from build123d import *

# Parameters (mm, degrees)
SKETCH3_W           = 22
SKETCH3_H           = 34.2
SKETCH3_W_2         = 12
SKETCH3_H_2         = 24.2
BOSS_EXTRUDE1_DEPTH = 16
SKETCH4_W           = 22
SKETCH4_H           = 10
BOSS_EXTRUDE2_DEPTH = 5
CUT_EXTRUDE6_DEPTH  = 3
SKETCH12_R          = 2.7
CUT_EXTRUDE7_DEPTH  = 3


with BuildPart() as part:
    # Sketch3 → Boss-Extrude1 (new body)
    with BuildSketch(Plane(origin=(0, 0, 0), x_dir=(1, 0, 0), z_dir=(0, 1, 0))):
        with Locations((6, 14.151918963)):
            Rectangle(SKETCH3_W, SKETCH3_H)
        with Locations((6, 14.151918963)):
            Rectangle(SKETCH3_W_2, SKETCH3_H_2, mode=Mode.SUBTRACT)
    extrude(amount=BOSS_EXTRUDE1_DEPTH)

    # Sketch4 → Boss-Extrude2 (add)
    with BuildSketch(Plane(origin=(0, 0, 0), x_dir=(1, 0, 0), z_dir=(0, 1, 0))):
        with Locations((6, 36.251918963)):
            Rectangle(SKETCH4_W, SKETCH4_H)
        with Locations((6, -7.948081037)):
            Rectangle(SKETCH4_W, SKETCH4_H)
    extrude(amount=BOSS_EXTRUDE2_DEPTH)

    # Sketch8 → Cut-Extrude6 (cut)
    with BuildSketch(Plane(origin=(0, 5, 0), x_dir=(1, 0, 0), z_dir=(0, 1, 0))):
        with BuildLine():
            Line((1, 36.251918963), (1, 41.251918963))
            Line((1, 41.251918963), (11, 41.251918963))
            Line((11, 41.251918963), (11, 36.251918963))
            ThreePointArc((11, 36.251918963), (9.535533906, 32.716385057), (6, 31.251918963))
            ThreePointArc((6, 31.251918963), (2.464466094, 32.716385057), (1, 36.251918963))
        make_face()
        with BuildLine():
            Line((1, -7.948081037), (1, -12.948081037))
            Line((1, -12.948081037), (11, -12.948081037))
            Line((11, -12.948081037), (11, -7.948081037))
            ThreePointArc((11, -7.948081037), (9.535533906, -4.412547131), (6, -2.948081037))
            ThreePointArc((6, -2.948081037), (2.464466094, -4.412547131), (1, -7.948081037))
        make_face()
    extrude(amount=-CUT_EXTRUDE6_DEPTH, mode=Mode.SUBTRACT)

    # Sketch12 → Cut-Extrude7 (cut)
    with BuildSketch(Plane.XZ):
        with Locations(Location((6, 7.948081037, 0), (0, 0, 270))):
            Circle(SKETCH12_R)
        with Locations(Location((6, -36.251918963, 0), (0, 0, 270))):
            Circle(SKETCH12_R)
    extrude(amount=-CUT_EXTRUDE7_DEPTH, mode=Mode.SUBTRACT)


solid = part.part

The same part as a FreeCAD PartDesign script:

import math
import FreeCAD as App
import Part
import Sketcher


def add_polygon(sketch, points):
    """Adds a closed chain of lines whose ends are joined by coincident constraints."""
    first, n = sketch.GeometryCount, len(points)
    for a, b in zip(points, points[1:] + points[:1]):
        sketch.addGeometry(Part.LineSegment(App.Vector(*a, 0), App.Vector(*b, 0)), False)
    for i in range(n):
        sketch.addConstraint(Sketcher.Constraint("Coincident", first + i, 2, first + (i + 1) % n, 1))

doc = App.newDocument("Part")
params = doc.addObject("Spreadsheet::Sheet", "Params")
for row, (alias, value) in enumerate([
    ("sketch1_width", "22 mm"),
    ("sketch1_width2", "12 mm"),
    ("sketch1_height", "34.2 mm"),
    ("sketch1_height2", "24.2 mm"),
    ("pad1_length", "16 mm"),
    ("sketch2_width", "22 mm"),
    ("sketch2_height", "10 mm"),
    ("pad2_length", "5 mm"),
    ("sketch3_radius", "5 mm"),
    ("sketch3_height", "5 mm"),
    ("pocket1_length", "3 mm"),
    ("sketch4_diameter", "5.4 mm"),
    ("pocket2_length", "3 mm"),
], start=1):
    params.set(f"A{row}", alias)
    params.set(f"B{row}", "=" + value)
    params.setAlias(f"B{row}", alias)

body = doc.addObject("PartDesign::Body", "Body")

sketch1 = doc.addObject("Sketcher::SketchObject", "Sketch")
body.addObject(sketch1)
sketch1.AttachmentSupport = (doc.XZ_Plane, [""])
sketch1.MapMode = "FlatFace"
add_polygon(sketch1, [(-5, -31), (-5, 3), (17, 3), (17, -31)])
add_polygon(sketch1, [(12, -2), (0, -2), (0, -26), (12, -26)])
sketch1.addConstraint(Sketcher.Constraint("Vertical", 0))
sketch1.addConstraint(Sketcher.Constraint("Horizontal", 1))
sketch1.addConstraint(Sketcher.Constraint("Vertical", 2))
sketch1.addConstraint(Sketcher.Constraint("Horizontal", 3))
sketch1.addConstraint(Sketcher.Constraint("Horizontal", 4))
sketch1.addConstraint(Sketcher.Constraint("Vertical", 5))
sketch1.addConstraint(Sketcher.Constraint("Horizontal", 6))
sketch1.addConstraint(Sketcher.Constraint("Vertical", 7))
sketch1.addConstraint(Sketcher.Constraint("PointOnObject", 4, 2, -2))
sketch1.addConstraint(Sketcher.Constraint("DistanceX", 1, 1, 1, 2, 22.0))
sketch1.addConstraint(Sketcher.Constraint("DistanceX", 4, 2, 4, 1, 12.0))
sketch1.addConstraint(Sketcher.Constraint("DistanceY", 0, 1, 0, 2, 34.2))
sketch1.addConstraint(Sketcher.Constraint("DistanceY", 5, 2, 5, 1, 24.2))
sketch1.addConstraint(Sketcher.Constraint("DistanceX", 0, 2, -1, 1, 5.0))
sketch1.addConstraint(Sketcher.Constraint("DistanceY", 4, 2, 0, 2, 5.0))
sketch1.addConstraint(Sketcher.Constraint("DistanceY", -1, 1, 0, 2, 2.948081))
sketch1.setExpression("Constraints[17]", "Params.sketch1_width")
sketch1.setExpression("Constraints[18]", "Params.sketch1_width2")
sketch1.setExpression("Constraints[19]", "Params.sketch1_height")
sketch1.setExpression("Constraints[20]", "Params.sketch1_height2")
pad1 = doc.addObject("PartDesign::Pad", "Pad")
body.addObject(pad1)
pad1.Profile = sketch1
pad1.setExpression("Length", "Params.pad1_length")
pad1.Reversed = True

sketch2 = doc.addObject("Sketcher::SketchObject", "Sketch001")
body.addObject(sketch2)
sketch2.AttachmentSupport = (doc.XZ_Plane, [""])
sketch2.MapMode = "FlatFace"
add_polygon(sketch2, [(-5, -41), (-5, -31), (17, -31), (17, -41)])
add_polygon(sketch2, [(-5, 3), (-5, 13), (17, 13), (17, 3)])
sketch2.addConstraint(Sketcher.Constraint("Vertical", 0))
sketch2.addConstraint(Sketcher.Constraint("Horizontal", 1))
sketch2.addConstraint(Sketcher.Constraint("Vertical", 2))
sketch2.addConstraint(Sketcher.Constraint("Horizontal", 3))
sketch2.addConstraint(Sketcher.Constraint("Vertical", 4))
sketch2.addConstraint(Sketcher.Constraint("Horizontal", 5))
sketch2.addConstraint(Sketcher.Constraint("Vertical", 6))
sketch2.addConstraint(Sketcher.Constraint("Horizontal", 7))
sketch2.addConstraint(Sketcher.Constraint("Vertical", 3, 2, 4, 2))
sketch2.addConstraint(Sketcher.Constraint("Vertical", 2, 2, 5, 2))
sketch2.addConstraint(Sketcher.Constraint("Equal", 2, 4))
sketch2.addConstraint(Sketcher.Constraint("DistanceX", 1, 1, 1, 2, 22.0))
sketch2.addConstraint(Sketcher.Constraint("DistanceY", 0, 1, 0, 2, 10.0))
sketch2.addConstraint(Sketcher.Constraint("DistanceX", 0, 2, -1, 1, 5.0))
sketch2.addConstraint(Sketcher.Constraint("DistanceY", 0, 2, 4, 2, 44.2))
sketch2.addConstraint(Sketcher.Constraint("DistanceY", 0, 2, -1, 1, 31.251919))
sketch2.setExpression("Constraints[19]", "Params.sketch2_width")
sketch2.setExpression("Constraints[20]", "Params.sketch2_height")
pad2 = doc.addObject("PartDesign::Pad", "Pad001")
body.addObject(pad2)
pad2.Profile = sketch2
pad2.setExpression("Length", "Params.pad2_length")
pad2.Reversed = True

sketch3 = doc.addObject("Sketcher::SketchObject", "Sketch002")
body.addObject(sketch3)
sketch3.AttachmentSupport = (doc.XZ_Plane, [""])
sketch3.MapMode = "FlatFace"
sketch3.AttachmentOffset = App.Placement(App.Vector(0, 0, -5), App.Rotation())
sketch3.addGeometry(Part.LineSegment(App.Vector(1, -41, 0), App.Vector(1, -36, 0)), False)
sketch3.addGeometry(Part.ArcOfCircle(Part.Circle(App.Vector(6, -36, 0), App.Vector(0, 0, 1), 5), math.radians(90), math.radians(180)), False)
sketch3.addGeometry(Part.ArcOfCircle(Part.Circle(App.Vector(6, -36, 0), App.Vector(0, 0, 1), 5), math.radians(0), math.radians(90)), False)
sketch3.addGeometry(Part.LineSegment(App.Vector(11, -36, 0), App.Vector(11, -41, 0)), False)
sketch3.addGeometry(Part.LineSegment(App.Vector(11, -41, 0), App.Vector(1, -41, 0)), False)
sketch3.addGeometry(Part.LineSegment(App.Vector(1, 8, 0), App.Vector(1, 13, 0)), False)
sketch3.addGeometry(Part.LineSegment(App.Vector(1, 13, 0), App.Vector(11, 13, 0)), False)
sketch3.addGeometry(Part.LineSegment(App.Vector(11, 13, 0), App.Vector(11, 8, 0)), False)
sketch3.addGeometry(Part.ArcOfCircle(Part.Circle(App.Vector(6, 8, 0), App.Vector(0, 0, 1), 5), math.radians(-90), math.radians(0)), False)
sketch3.addGeometry(Part.ArcOfCircle(Part.Circle(App.Vector(6, 8, 0), App.Vector(0, 0, 1), 5), math.radians(180), math.radians(270)), False)
sketch3.addConstraint(Sketcher.Constraint("Tangent", 0, 2, 1, 2))
sketch3.addConstraint(Sketcher.Constraint("Tangent", 1, 1, 2, 2))
sketch3.addConstraint(Sketcher.Constraint("Tangent", 2, 1, 3, 1))
sketch3.addConstraint(Sketcher.Constraint("Coincident", 3, 2, 4, 1))
sketch3.addConstraint(Sketcher.Constraint("Coincident", 4, 2, 0, 1))
sketch3.addConstraint(Sketcher.Constraint("Coincident", 5, 2, 6, 1))
sketch3.addConstraint(Sketcher.Constraint("Coincident", 6, 2, 7, 1))
sketch3.addConstraint(Sketcher.Constraint("Tangent", 7, 2, 8, 2))
sketch3.addConstraint(Sketcher.Constraint("Tangent", 8, 1, 9, 2))
sketch3.addConstraint(Sketcher.Constraint("Tangent", 9, 1, 5, 1))
sketch3.addConstraint(Sketcher.Constraint("Vertical", 0))
sketch3.addConstraint(Sketcher.Constraint("Vertical", 3))
sketch3.addConstraint(Sketcher.Constraint("Horizontal", 4))
sketch3.addConstraint(Sketcher.Constraint("Vertical", 5))
sketch3.addConstraint(Sketcher.Constraint("Horizontal", 6))
sketch3.addConstraint(Sketcher.Constraint("Vertical", 7))
sketch3.addConstraint(Sketcher.Constraint("Equal", 1, 2))
sketch3.addConstraint(Sketcher.Constraint("Equal", 2, 8))
sketch3.addConstraint(Sketcher.Constraint("Equal", 8, 9))
sketch3.addConstraint(Sketcher.Constraint("Vertical", 2, 3, 8, 3))
sketch3.addConstraint(Sketcher.Constraint("Vertical", 9, 3, 1, 1))
sketch3.addConstraint(Sketcher.Constraint("Vertical", 1, 1, 8, 1))
sketch3.addConstraint(Sketcher.Constraint("Equal", 3, 5))
sketch3.addConstraint(Sketcher.Constraint("Radius", 1, 5.0))
sketch3.addConstraint(Sketcher.Constraint("DistanceY", 0, 1, 0, 2, 5.0))
sketch3.addConstraint(Sketcher.Constraint("DistanceX", -1, 1, 1, 3, 6.0))
sketch3.addConstraint(Sketcher.Constraint("DistanceY", 1, 3, 8, 3, 44.2))
sketch3.addConstraint(Sketcher.Constraint("DistanceY", 1, 3, -1, 1, 36.251919))
sketch3.setExpression("Constraints[23]", "Params.sketch3_radius")
sketch3.setExpression("Constraints[24]", "Params.sketch3_height")
pocket1 = doc.addObject("PartDesign::Pocket", "Pocket")
body.addObject(pocket1)
pocket1.Profile = sketch3
pocket1.setExpression("Length", "Params.pocket1_length")
pocket1.Reversed = True

sketch4 = doc.addObject("Sketcher::SketchObject", "Sketch003")
body.addObject(sketch4)
sketch4.AttachmentSupport = (doc.XZ_Plane, [""])
sketch4.MapMode = "FlatFace"
sketch4.addGeometry(Part.Circle(App.Vector(6, 7.9, 0), App.Vector(0, 0, 1), 2.7), False)
sketch4.addGeometry(Part.Circle(App.Vector(6, -36.3, 0), App.Vector(0, 0, 1), 2.7), False)
sketch4.addConstraint(Sketcher.Constraint("Equal", 0, 1))
sketch4.addConstraint(Sketcher.Constraint("Vertical", 0, 3, 1, 3))
sketch4.addConstraint(Sketcher.Constraint("Diameter", 0, 5.4))
sketch4.addConstraint(Sketcher.Constraint("DistanceX", -1, 1, 0, 3, 6.0))
sketch4.addConstraint(Sketcher.Constraint("DistanceY", 1, 3, 0, 3, 44.2))
sketch4.addConstraint(Sketcher.Constraint("DistanceY", -1, 1, 0, 3, 7.948081))
sketch4.setExpression("Constraints[2]", "Params.sketch4_diameter")
pocket2 = doc.addObject("PartDesign::Pocket", "Pocket001")
body.addObject(pocket2)
pocket2.Profile = sketch4
pocket2.setExpression("Length", "Params.pocket2_length")

doc.recompute()
